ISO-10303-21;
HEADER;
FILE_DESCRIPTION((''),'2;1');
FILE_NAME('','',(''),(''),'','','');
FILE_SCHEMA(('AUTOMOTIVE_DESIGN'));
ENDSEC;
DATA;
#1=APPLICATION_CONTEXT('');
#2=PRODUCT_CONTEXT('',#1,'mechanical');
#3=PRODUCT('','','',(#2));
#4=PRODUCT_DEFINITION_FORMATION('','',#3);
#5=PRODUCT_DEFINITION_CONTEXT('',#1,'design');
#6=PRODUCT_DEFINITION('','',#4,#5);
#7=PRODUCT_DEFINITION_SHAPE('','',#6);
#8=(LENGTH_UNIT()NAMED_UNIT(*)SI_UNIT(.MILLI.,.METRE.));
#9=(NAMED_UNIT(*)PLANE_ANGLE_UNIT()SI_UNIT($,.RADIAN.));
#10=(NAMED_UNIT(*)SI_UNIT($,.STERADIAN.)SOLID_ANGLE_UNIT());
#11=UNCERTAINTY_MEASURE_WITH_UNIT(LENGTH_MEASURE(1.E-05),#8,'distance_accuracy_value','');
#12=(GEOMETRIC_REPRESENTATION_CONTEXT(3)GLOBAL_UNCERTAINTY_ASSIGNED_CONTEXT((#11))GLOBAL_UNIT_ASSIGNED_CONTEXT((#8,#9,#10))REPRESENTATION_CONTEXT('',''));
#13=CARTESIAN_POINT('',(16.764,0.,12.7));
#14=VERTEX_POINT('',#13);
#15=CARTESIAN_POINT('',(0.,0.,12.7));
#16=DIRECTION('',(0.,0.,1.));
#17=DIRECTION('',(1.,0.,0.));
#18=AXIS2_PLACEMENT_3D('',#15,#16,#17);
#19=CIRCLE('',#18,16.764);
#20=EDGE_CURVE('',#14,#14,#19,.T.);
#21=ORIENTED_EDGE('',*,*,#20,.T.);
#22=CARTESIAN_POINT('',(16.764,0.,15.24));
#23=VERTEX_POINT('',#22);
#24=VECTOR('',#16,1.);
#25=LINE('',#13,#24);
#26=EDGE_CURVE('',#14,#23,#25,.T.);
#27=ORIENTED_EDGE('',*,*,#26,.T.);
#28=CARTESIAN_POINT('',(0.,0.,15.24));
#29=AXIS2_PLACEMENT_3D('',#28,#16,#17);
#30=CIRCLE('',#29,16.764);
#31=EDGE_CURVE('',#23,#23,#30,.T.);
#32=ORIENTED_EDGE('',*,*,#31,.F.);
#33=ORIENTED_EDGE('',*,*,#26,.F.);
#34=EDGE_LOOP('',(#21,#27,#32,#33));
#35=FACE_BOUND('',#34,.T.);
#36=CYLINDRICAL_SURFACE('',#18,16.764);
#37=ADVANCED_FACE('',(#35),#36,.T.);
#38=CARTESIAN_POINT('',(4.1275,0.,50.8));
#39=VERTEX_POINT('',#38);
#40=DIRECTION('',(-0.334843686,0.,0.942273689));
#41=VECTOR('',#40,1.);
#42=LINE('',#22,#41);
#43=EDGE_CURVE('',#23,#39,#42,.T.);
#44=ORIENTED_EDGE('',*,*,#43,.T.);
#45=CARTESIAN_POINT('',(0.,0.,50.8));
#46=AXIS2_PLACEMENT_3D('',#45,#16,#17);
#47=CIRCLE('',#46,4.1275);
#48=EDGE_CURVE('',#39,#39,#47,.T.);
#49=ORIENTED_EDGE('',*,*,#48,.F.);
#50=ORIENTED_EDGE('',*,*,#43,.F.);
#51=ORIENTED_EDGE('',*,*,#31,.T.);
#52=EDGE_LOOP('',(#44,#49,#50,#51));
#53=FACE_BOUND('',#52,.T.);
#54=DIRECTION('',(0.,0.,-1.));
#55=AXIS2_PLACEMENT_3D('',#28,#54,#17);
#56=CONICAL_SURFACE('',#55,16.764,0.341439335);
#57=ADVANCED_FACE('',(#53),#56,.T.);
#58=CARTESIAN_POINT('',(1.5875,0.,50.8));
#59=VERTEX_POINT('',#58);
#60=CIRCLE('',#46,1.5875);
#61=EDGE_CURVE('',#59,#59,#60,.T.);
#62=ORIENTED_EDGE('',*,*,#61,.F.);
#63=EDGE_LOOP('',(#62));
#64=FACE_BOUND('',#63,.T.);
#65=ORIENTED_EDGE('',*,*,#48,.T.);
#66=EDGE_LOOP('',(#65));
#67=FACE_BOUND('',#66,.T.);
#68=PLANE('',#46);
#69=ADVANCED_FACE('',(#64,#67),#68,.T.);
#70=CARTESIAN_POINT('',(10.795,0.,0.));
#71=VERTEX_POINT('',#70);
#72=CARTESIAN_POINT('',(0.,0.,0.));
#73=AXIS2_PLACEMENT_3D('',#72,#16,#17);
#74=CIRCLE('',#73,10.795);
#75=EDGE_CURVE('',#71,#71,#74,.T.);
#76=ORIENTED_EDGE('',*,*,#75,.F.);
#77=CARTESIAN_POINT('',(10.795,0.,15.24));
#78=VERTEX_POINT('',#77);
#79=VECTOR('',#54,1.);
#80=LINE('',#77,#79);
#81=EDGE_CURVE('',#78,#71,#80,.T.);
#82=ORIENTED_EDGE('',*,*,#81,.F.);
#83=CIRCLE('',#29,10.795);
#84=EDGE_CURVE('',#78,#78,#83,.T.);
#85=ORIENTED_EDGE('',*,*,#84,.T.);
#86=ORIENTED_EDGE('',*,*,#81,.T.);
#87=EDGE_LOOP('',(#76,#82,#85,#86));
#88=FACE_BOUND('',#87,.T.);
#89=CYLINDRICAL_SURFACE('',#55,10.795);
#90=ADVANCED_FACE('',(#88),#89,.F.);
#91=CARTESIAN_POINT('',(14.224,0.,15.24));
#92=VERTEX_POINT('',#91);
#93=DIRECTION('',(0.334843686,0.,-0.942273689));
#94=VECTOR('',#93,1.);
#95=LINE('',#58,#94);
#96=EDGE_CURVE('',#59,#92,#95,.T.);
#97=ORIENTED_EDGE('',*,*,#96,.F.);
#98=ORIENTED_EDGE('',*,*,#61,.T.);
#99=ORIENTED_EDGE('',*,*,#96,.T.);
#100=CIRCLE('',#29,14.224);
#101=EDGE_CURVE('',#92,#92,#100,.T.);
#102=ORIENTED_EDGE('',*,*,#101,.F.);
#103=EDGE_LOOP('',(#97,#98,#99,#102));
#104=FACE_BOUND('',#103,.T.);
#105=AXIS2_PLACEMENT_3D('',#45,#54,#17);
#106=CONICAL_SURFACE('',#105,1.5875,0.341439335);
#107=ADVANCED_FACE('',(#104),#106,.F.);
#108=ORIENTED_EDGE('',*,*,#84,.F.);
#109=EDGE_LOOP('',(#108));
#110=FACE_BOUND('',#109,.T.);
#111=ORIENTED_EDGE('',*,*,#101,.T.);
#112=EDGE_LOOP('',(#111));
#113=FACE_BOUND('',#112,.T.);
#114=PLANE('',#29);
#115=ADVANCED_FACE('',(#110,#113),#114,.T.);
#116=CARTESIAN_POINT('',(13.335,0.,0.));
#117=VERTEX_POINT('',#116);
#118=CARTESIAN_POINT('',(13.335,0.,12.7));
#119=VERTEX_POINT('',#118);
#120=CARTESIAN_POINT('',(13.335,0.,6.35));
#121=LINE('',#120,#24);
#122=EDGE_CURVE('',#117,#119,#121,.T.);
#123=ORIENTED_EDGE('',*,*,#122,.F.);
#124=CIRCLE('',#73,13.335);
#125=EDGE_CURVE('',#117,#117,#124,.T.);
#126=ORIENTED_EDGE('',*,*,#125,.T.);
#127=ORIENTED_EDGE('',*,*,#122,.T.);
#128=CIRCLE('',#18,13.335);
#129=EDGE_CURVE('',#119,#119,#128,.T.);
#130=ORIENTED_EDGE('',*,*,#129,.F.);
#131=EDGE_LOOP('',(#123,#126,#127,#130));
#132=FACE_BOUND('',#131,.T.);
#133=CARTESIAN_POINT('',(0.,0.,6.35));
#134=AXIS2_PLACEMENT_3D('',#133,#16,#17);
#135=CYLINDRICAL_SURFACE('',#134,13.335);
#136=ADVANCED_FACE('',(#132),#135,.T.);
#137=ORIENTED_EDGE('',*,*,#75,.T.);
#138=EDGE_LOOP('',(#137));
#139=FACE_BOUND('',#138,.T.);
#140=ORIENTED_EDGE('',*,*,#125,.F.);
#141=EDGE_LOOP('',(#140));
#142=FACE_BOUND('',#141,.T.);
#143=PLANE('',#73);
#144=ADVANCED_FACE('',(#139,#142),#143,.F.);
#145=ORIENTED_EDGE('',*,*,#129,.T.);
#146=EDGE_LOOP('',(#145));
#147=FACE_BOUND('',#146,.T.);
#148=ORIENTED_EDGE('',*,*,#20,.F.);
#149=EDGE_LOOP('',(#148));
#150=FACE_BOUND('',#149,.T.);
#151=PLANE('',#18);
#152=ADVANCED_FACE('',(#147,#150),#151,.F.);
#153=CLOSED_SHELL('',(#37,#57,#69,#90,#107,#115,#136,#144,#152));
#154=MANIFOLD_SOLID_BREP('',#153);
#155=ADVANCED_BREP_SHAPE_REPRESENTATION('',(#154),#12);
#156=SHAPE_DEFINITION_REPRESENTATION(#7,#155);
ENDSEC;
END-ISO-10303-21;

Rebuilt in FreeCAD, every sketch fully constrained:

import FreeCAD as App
import Part
import Sketcher

V = App.Vector
Q = App.Units.Quantity


def add_polygon(sketch, points):
    """Adds a closed chain of lines whose ends are joined by coincident constraints."""
    first, n = sketch.GeometryCount, len(points)
    for a, b in zip(points, points[1:] + points[:1]):
        sketch.addGeometry(Part.LineSegment(App.Vector(*a, 0), App.Vector(*b, 0)), False)
    for i in range(n):
        sketch.addConstraint(Sketcher.Constraint("Coincident", first + i, 2, first + (i + 1) % n, 1))

doc = App.newDocument("Part")
body = doc.addObject("PartDesign::Body", "Body")

# Sketch on XZ plane
sketch1 = doc.addObject("Sketcher::SketchObject", "Sketch")
body.addObject(sketch1)
sketch1.AttachmentSupport = (doc.XZ_Plane, [""])
sketch1.MapMode = "FlatFace"
add_polygon(sketch1, [(1.6, 50.8), (14.2, 15.2), (10.8, 15.2), (10.8, 0), (13.3, 0), (13.3, 12.7), (16.8, 12.7), (16.8, 15.2), (4.1, 50.8)])  # lines 0-8
sketch1.addConstraint([
    Sketcher.Constraint("Horizontal", 1),
    Sketcher.Constraint("Vertical", 2),
    Sketcher.Constraint("Horizontal", 3),
    Sketcher.Constraint("Vertical", 4),
    Sketcher.Constraint("Horizontal", 5),
    Sketcher.Constraint("Vertical", 6),
    Sketcher.Constraint("Horizontal", 8),
    Sketcher.Constraint("PointOnObject", 2, 2, -1),
    Sketcher.Constraint("Parallel", 0, 7),
    Sketcher.Constraint("Horizontal", 1, 2, 6, 2),
    Sketcher.Constraint("Equal", 1, 5),
    Sketcher.Constraint("Equal", 8, 6),
    Sketcher.Constraint("DistanceX", 3, 1, 3, 2, Q("0.1 in")),
    Sketcher.Constraint("DistanceY", 2, 2, 2, 1, Q("0.6 in")),
    Sketcher.Constraint("DistanceY", -1, 1, 7, 2, Q("2 in")),
    Sketcher.Constraint("DistanceX", 1, 2, 1, 1, Q("0.135 in")),
    Sketcher.Constraint("DistanceX", -1, 1, 0, 2, Q("0.56 in")),
    Sketcher.Constraint("DistanceX", -1, 1, 8, 2, Q("0.0625 in")),
])
revolution = doc.addObject("PartDesign::Revolution", "Revolution")
body.addObject(revolution)
revolution.Profile = sketch1
revolution.ReferenceAxis = (sketch1, ["V_Axis"])
revolution.Angle = 360

doc.recompute()
